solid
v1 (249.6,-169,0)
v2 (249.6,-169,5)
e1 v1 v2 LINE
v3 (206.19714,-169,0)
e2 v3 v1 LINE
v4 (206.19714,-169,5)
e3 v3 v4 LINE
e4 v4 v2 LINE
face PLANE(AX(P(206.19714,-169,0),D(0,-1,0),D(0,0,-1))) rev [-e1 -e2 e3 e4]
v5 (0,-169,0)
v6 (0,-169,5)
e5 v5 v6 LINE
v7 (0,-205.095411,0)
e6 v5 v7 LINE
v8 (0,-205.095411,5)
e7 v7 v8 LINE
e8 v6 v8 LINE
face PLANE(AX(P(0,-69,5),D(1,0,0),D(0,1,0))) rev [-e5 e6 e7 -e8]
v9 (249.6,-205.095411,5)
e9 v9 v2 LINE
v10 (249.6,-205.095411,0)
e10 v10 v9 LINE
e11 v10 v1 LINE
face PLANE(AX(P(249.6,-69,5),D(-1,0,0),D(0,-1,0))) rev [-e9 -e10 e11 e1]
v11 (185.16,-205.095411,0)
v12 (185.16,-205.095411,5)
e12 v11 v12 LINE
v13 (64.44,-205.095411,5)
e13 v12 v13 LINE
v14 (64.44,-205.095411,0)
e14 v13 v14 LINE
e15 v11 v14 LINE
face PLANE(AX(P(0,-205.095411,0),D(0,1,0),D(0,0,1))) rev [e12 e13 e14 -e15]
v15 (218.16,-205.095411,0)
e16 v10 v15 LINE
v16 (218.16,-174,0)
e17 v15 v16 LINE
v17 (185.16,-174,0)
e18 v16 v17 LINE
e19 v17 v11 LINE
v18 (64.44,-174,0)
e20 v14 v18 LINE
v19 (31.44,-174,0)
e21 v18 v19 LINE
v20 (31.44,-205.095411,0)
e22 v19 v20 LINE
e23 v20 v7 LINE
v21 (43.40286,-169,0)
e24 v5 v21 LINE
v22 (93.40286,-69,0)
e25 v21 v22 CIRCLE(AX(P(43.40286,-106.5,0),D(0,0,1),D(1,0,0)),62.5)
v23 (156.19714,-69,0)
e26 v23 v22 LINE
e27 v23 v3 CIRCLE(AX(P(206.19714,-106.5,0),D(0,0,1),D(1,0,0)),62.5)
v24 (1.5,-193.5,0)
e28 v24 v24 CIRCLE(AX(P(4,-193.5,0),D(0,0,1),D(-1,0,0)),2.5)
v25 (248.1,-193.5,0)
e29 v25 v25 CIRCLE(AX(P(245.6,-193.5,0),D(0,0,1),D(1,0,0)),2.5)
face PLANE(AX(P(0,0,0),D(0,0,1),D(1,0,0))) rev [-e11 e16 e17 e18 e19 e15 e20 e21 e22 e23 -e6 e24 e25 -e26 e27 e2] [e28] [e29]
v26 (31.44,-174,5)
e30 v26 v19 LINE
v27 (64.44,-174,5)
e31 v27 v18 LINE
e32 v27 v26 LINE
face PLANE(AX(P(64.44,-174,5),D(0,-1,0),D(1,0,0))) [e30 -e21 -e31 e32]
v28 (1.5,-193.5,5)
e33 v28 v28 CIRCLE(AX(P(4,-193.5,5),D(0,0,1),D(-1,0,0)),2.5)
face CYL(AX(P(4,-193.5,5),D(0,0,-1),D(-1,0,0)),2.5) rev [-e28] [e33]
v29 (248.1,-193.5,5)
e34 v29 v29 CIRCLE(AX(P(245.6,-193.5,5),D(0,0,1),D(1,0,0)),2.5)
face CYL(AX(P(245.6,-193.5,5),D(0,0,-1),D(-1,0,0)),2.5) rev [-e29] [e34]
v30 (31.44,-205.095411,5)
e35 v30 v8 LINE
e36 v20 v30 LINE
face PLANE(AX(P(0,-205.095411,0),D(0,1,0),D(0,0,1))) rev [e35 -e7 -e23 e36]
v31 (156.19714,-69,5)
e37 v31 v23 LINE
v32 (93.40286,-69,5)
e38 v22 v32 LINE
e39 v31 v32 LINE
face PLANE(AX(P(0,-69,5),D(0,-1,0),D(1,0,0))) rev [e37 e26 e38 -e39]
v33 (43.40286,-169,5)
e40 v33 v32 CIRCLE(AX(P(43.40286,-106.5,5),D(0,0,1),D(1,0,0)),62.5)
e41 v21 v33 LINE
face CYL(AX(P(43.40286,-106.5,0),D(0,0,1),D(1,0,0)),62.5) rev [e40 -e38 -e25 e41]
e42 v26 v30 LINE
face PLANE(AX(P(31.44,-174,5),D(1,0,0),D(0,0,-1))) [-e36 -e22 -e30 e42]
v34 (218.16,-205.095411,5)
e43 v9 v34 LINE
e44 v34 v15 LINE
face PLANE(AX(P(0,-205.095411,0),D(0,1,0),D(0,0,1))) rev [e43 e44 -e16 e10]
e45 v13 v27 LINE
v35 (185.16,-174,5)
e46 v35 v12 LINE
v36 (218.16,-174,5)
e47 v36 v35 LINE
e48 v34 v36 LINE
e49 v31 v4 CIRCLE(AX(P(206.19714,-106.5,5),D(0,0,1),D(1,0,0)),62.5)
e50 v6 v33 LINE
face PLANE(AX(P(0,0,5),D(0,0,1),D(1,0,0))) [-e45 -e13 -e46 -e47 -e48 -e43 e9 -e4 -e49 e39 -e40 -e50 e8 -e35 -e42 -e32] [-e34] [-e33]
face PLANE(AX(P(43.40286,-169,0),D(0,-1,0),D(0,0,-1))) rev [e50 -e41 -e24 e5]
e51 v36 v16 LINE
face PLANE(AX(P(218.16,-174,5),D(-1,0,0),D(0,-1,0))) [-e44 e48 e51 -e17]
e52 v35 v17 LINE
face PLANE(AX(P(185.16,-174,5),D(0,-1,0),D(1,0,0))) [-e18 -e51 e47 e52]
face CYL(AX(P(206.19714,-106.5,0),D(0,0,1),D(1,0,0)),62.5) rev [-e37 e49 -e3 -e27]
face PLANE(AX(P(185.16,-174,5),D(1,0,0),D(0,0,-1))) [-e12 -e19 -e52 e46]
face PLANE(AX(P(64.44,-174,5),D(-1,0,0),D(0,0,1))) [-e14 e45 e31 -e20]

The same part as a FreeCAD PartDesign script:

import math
import FreeCAD as App
import Part
import Sketcher
from FreeCAD import Vector

doc = App.newDocument("Part")
body = doc.addObject("PartDesign::Body", "Body")

# Sketch on XY plane
sketch1 = body.newObject("Sketcher::SketchObject", "Sketch")
sketch1.AttachmentSupport = (doc.getObject("XY_Plane"), [""])
sketch1.MapMode = "FlatFace"
sketch1.addGeometry([
    Part.LineSegment(Vector(0, -69, 0), Vector(0, -336.4, 0)),  # 0
    Part.LineSegment(Vector(0, -336.4, 0), Vector(249.6, -336.4, 0)),  # 1
    Part.LineSegment(Vector(249.6, -336.4, 0), Vector(249.6, -69, 0)),  # 2
    Part.LineSegment(Vector(249.6, -69, 0), Vector(0, -69, 0)),  # 3
    Part.Circle(Vector(4, -244.5, 0), Vector(0, 0, 1), 2.5),  # 4
    Part.Circle(Vector(245.6, -244.5, 0), Vector(0, 0, 1), 2.5),  # 5
    Part.LineSegment(Vector(64.4, -264, 0), Vector(31.4, -264, 0)),  # 6
    Part.LineSegment(Vector(31.4, -264, 0), Vector(31.4, -174, 0)),  # 7
    Part.LineSegment(Vector(31.4, -174, 0), Vector(64.4, -174, 0)),  # 8
    Part.LineSegment(Vector(64.4, -174, 0), Vector(64.4, -264, 0)),  # 9
    Part.Circle(Vector(4, -193.5, 0), Vector(0, 0, 1), 2.5),  # 10
    Part.LineSegment(Vector(218.2, -264, 0), Vector(185.2, -264, 0)),  # 11
    Part.LineSegment(Vector(185.2, -264, 0), Vector(185.2, -174, 0)),  # 12
    Part.LineSegment(Vector(185.2, -174, 0), Vector(218.2, -174, 0)),  # 13
    Part.LineSegment(Vector(218.2, -174, 0), Vector(218.2, -264, 0)),  # 14
    Part.Circle(Vector(245.6, -193.5, 0), Vector(0, 0, 1), 2.5),  # 15
], False)
sketch1.addConstraint([
    Sketcher.Constraint("Coincident", 0, 2, 1, 1),
    Sketcher.Constraint("Coincident", 1, 2, 2, 1),
    Sketcher.Constraint("Coincident", 2, 2, 3, 1),
    Sketcher.Constraint("Coincident", 3, 2, 0, 1),
    Sketcher.Constraint("Coincident", 6, 2, 7, 1),
    Sketcher.Constraint("Coincident", 7, 2, 8, 1),
    Sketcher.Constraint("Coincident", 8, 2, 9, 1),
    Sketcher.Constraint("Coincident", 9, 2, 6, 1),
    Sketcher.Constraint("Coincident", 11, 2, 12, 1),
    Sketcher.Constraint("Coincident", 12, 2, 13, 1),
    Sketcher.Constraint("Coincident", 13, 2, 14, 1),
    Sketcher.Constraint("Coincident", 14, 2, 11, 1),
    Sketcher.Constraint("Vertical", 0),
    Sketcher.Constraint("Horizontal", 1),
    Sketcher.Constraint("Vertical", 2),
    Sketcher.Constraint("Horizontal", 3),
    Sketcher.Constraint("Horizontal", 6),
    Sketcher.Constraint("Vertical", 7),
    Sketcher.Constraint("Horizontal", 8),
    Sketcher.Constraint("Vertical", 9),
    Sketcher.Constraint("Horizontal", 11),
    Sketcher.Constraint("Vertical", 12),
    Sketcher.Constraint("Horizontal", 13),
    Sketcher.Constraint("Vertical", 14),
    Sketcher.Constraint("Equal", 4, 5),
    Sketcher.Constraint("Equal", 5, 10),
    Sketcher.Constraint("Equal", 10, 15),
    Sketcher.Constraint("PointOnObject", 0, 2, -2),
    Sketcher.Constraint("Horizontal", 4, 3, 5, 3),
    Sketcher.Constraint("Horizontal", 10, 3, 15, 3),
    Sketcher.Constraint("Horizontal", 9, 2, 11, 2),
    Sketcher.Constraint("Horizontal", 8, 2, 12, 2),
    Sketcher.Constraint("Vertical", 4, 3, 10, 3),
    Sketcher.Constraint("Vertical", 5, 3, 15, 3),
    Sketcher.Constraint("Equal", 8, 11),
    Sketcher.Constraint("Diameter", 4, 5.0),
    Sketcher.Constraint("DistanceX", 6, 2, 6, 1, 33.0),
    Sketcher.Constraint("DistanceY", 7, 1, 7, 2, 90.0),
    Sketcher.Constraint("DistanceX", 1, 1, 1, 2, 249.6),
    Sketcher.Constraint("DistanceY", 0, 2, 0, 1, 267.4),
    Sketcher.Constraint("DistanceX", -1, 1, 4, 3, 4.0),
    Sketcher.Constraint("DistanceY", 2, 2, -1, 1, 69.0),
    Sketcher.Constraint("DistanceY", 6, 2, -1, 1, 264.0),
    Sketcher.Constraint("DistanceY", 4, 3, 10, 3, 51.0),
    Sketcher.Constraint("DistanceX", 5, 3, 1, 2, 4.0),
    Sketcher.Constraint("DistanceY", 4, 3, -1, 1, 244.5),
    Sketcher.Constraint("DistanceX", -1, 1, 6, 2, 31.44),
    Sketcher.Constraint("DistanceX", -1, 1, 11, 2, 185.16),
])
pad1 = body.newObject("PartDesign::Pad", "Pad")
pad1.Profile = sketch1
pad1.Length = 5

# Sketch on XY plane
sketch2 = body.newObject("Sketcher::SketchObject", "Sketch001")
sketch2.AttachmentSupport = (doc.getObject("XY_Plane"), [""])
sketch2.MapMode = "FlatFace"
sketch2.AttachmentOffset = App.Placement(Vector(0, 0, 5), App.Rotation())
sketch2.addGeometry([
    Part.LineSegment(Vector(43, -44, 0), Vector(0, -44, 0)),  # 0
    Part.LineSegment(Vector(0, -44, 0), Vector(0, -169, 0)),  # 1
    Part.LineSegment(Vector(0, -169, 0), Vector(43, -169, 0)),  # 2
    Part.ArcOfCircle(Part.Circle(Vector(43, -106, 0), Vector(0, 0, 1), 62), math.radians(-90), math.radians(90)),  # 3
    Part.LineSegment(Vector(206, -169, 0), Vector(250, -169, 0)),  # 4
    Part.LineSegment(Vector(250, -169, 0), Vector(250, -44, 0)),  # 5
    Part.LineSegment(Vector(250, -44, 0), Vector(206, -44, 0)),  # 6
    Part.ArcOfCircle(Part.Circle(Vector(206, -106, 0), Vector(0, 0, 1), 62), math.radians(90), math.radians(270)),  # 7
    Part.LineSegment(Vector(0, -205, 0), Vector(0, -336, 0)),  # 8
    Part.LineSegment(Vector(0, -336, 0), Vector(250, -336, 0)),  # 9
    Part.LineSegment(Vector(250, -336, 0), Vector(250, -205, 0)),  # 10
    Part.LineSegment(Vector(250, -205, 0), Vector(0, -205, 0)),  # 11
], False)
sketch2.addConstraint([
    Sketcher.Constraint("Coincident", 0, 2, 1, 1),
    Sketcher.Constraint("Coincident", 1, 2, 2, 1),
    Sketcher.Constraint("Tangent", 2, 2, 3, 1),
    Sketcher.Constraint("Tangent", 3, 2, 0, 1),
    Sketcher.Constraint("Coincident", 4, 2, 5, 1),
    Sketcher.Constraint("Coincident", 5, 2, 6, 1),
    Sketcher.Constraint("Tangent", 6, 2, 7, 1),
    Sketcher.Constraint("Tangent", 7, 2, 4, 1),
    Sketcher.Constraint("Coincident", 8, 2, 9, 1),
    Sketcher.Constraint("Coincident", 9, 2, 10, 1),
    Sketcher.Constraint("Coincident", 10, 2, 11, 1),
    Sketcher.Constraint("Coincident", 11, 2, 8, 1),
    Sketcher.Constraint("Horizontal", 0),
    Sketcher.Constraint("Vertical", 1),
    Sketcher.Constraint("Horizontal", 2),
    Sketcher.Constraint("Horizontal", 4),
    Sketcher.Constraint("Vertical", 5),
    Sketcher.Constraint("Horizontal", 6),
    Sketcher.Constraint("Vertical", 8),
    Sketcher.Constraint("Horizontal", 9),
    Sketcher.Constraint("Vertical", 10),
    Sketcher.Constraint("Horizontal", 11),
    Sketcher.Constraint("Equal", 3, 7),
    Sketcher.Constraint("PointOnObject", 0, 2, -2),
    Sketcher.Constraint("PointOnObject", 8, 2, -2),
    Sketcher.Constraint("Horizontal", 3, 3, 7, 3),
    Sketcher.Constraint("Vertical", 5, 2, 9, 2),
    Sketcher.Constraint("Equal", 2, 4),
    Sketcher.Constraint("Radius", 3, 62.5),
    Sketcher.Constraint("DistanceX", 9, 1, 9, 2, 249.6),
    Sketcher.Constraint("DistanceY", 0, 2, -1, 1, 44.0),
    Sketcher.Constraint("DistanceY", 8, 2, -1, 1, 336.4),
    Sketcher.Constraint("DistanceX", 0, 2, 0, 1, 43.40286),
    Sketcher.Constraint("DistanceY", 8, 2, 8, 1, 131.304589),
])
pocket1 = body.newObject("PartDesign::Pocket", "Pocket")
pocket1.Profile = sketch2
pocket1.Type = "ThroughAll"

doc.recompute()
